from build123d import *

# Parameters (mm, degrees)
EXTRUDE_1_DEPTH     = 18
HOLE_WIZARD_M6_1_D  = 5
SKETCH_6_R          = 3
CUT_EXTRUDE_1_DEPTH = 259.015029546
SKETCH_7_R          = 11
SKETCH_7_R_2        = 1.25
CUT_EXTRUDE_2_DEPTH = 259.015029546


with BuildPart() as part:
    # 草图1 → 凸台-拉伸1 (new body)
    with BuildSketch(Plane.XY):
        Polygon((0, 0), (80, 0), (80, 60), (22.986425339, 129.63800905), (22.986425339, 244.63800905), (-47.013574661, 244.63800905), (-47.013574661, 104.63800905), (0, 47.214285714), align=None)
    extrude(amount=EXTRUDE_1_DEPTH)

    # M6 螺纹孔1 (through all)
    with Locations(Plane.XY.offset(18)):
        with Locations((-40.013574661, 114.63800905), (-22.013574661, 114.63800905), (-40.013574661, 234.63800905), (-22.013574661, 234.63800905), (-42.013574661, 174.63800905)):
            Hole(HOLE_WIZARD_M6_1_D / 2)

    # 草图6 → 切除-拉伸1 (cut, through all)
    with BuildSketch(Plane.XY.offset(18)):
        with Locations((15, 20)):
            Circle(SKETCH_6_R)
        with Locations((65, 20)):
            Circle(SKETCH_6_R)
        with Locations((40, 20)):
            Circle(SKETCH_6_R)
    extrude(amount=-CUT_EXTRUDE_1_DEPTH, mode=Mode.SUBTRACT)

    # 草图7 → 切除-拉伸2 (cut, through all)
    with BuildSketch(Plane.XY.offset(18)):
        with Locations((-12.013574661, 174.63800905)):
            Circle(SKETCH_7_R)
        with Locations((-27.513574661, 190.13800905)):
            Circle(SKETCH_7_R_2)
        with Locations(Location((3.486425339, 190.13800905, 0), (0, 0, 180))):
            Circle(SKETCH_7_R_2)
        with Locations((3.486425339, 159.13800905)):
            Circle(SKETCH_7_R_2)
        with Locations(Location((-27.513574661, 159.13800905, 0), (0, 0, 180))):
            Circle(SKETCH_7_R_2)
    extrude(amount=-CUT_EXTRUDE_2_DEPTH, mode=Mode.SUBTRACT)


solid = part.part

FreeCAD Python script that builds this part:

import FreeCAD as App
import Part
import Sketcher

V = App.Vector

doc = App.newDocument("Part")
body = doc.addObject("PartDesign::Body", "Body")

sketch1 = doc.addObject("Sketcher::SketchObject", "Sketch")
body.addObject(sketch1)
sketch1.AttachmentSupport = (doc.XY_Plane, [""])
sketch1.MapMode = "FlatFace"
sketch1.addGeometry(Part.LineSegment(V(0, 0, 0), V(80, 0, 0)), False)
sketch1.addGeometry(Part.LineSegment(V(80, 0, 0), V(80, 60, 0)), False)
sketch1.addGeometry(Part.LineSegment(V(80, 60, 0), V(23, 130, 0)), False)
sketch1.addGeometry(Part.LineSegment(V(23, 130, 0), V(23, 245, 0)), False)
sketch1.addGeometry(Part.LineSegment(V(23, 245, 0), V(-47, 245, 0)), False)
sketch1.addGeometry(Part.LineSegment(V(-47, 245, 0), V(-47, 105, 0)), False)
sketch1.addGeometry(Part.LineSegment(V(-47, 105, 0), V(0, 47, 0)), False)
sketch1.addGeometry(Part.LineSegment(V(0, 47, 0), V(0, 0, 0)), False)
sketch1.addConstraint(Sketcher.Constraint("Coincident", 0, 2, 1, 1))
sketch1.addConstraint(Sketcher.Constraint("Coincident", 1, 2, 2, 1))
sketch1.addConstraint(Sketcher.Constraint("Coincident", 2, 2, 3, 1))
sketch1.addConstraint(Sketcher.Constraint("Coincident", 3, 2, 4, 1))
sketch1.addConstraint(Sketcher.Constraint("Coincident", 4, 2, 5, 1))
sketch1.addConstraint(Sketcher.Constraint("Coincident", 5, 2, 6, 1))
sketch1.addConstraint(Sketcher.Constraint("Coincident", 6, 2, 7, 1))
sketch1.addConstraint(Sketcher.Constraint("Coincident", 7, 2, 0, 1))
sketch1.addConstraint(Sketcher.Constraint("Horizontal", 0))
sketch1.addConstraint(Sketcher.Constraint("Vertical", 1))
sketch1.addConstraint(Sketcher.Constraint("Vertical", 3))
sketch1.addConstraint(Sketcher.Constraint("Horizontal", 4))
sketch1.addConstraint(Sketcher.Constraint("Vertical", 5))
sketch1.addConstraint(Sketcher.Constraint("Vertical", 7))
sketch1.addConstraint(Sketcher.Constraint("Coincident", 7, 2, -1, 1))
sketch1.addConstraint(Sketcher.Constraint("Parallel", 2, 6))
sketch1.addConstraint(Sketcher.Constraint("DistanceX", 0, 1, 0, 2, 80.0))
sketch1.addConstraint(Sketcher.Constraint("DistanceX", 4, 2, 4, 1, 70.0))
sketch1.addConstraint(Sketcher.Constraint("DistanceY", 1, 1, 1, 2, 60.0))
sketch1.addConstraint(Sketcher.Constraint("DistanceY", 3, 1, 3, 2, 115.0))
sketch1.addConstraint(Sketcher.Constraint("DistanceY", 5, 2, 5, 1, 140.0))
sketch1.addConstraint(Sketcher.Constraint("Distance", 2, 90.0))
sketch1.addConstraint(Sketcher.Constraint("DistanceY", 7, 2, 7, 1, 47.214286))
pad1 = doc.addObject("PartDesign::Pad", "Pad")
body.addObject(pad1)
pad1.Profile = sketch1
pad1.Length = 18

sketch2 = doc.addObject("Sketcher::SketchObject", "Sketch001")
body.addObject(sketch2)
sketch2.AttachmentSupport = (doc.XY_Plane, [""])
sketch2.MapMode = "FlatFace"
sketch2.AttachmentOffset = App.Placement(V(0, 0, 18), App.Rotation())
sketch2.addGeometry(Part.Circle(V(-40, 114.6, 0), V(0, 0, 1), 2.5), False)
sketch2.addGeometry(Part.Circle(V(-22, 114.6, 0), V(0, 0, 1), 2.5), False)
sketch2.addGeometry(Part.Circle(V(-40, 234.6, 0), V(0, 0, 1), 2.5), False)
sketch2.addGeometry(Part.Circle(V(-22, 234.6, 0), V(0, 0, 1), 2.5), False)
sketch2.addGeometry(Part.Circle(V(-42, 174.6, 0), V(0, 0, 1), 2.5), False)
sketch2.addConstraint(Sketcher.Constraint("Equal", 0, 1))
sketch2.addConstraint(Sketcher.Constraint("Equal", 1, 2))
sketch2.addConstraint(Sketcher.Constraint("Equal", 2, 3))
sketch2.addConstraint(Sketcher.Constraint("Equal", 3, 4))
sketch2.addConstraint(Sketcher.Constraint("Horizontal", 0, 3, 1, 3))
sketch2.addConstraint(Sketcher.Constraint("Horizontal", 2, 3, 3, 3))
sketch2.addConstraint(Sketcher.Constraint("Vertical", 0, 3, 2, 3))
sketch2.addConstraint(Sketcher.Constraint("Vertical", 1, 3, 3, 3))
sketch2.addConstraint(Sketcher.Constraint("Diameter", 0, 5.0))
sketch2.addConstraint(Sketcher.Constraint("DistanceX", 0, 3, 1, 3, 18.0))
sketch2.addConstraint(Sketcher.Constraint("DistanceY", 0, 3, 2, 3, 120.0))
sketch2.addConstraint(Sketcher.Constraint("DistanceX", 4, 3, 0, 3, 2.0))
sketch2.addConstraint(Sketcher.Constraint("DistanceY", 0, 3, 4, 3, 60.0))
sketch2.addConstraint(Sketcher.Constraint("DistanceY", -1, 1, 0, 3, 114.638009))
sketch2.addConstraint(Sketcher.Constraint("DistanceX", 0, 3, -1, 1, 40.013575))
doc.recompute()
hole = doc.addObject("PartDesign::Hole", "Hole")
body.addObject(hole)
hole.Profile = sketch2
hole.ThreadType = "None"
hole.Diameter = 5
hole.DepthType = "ThroughAll"

sketch3 = doc.addObject("Sketcher::SketchObject", "Sketch002")
body.addObject(sketch3)
sketch3.AttachmentSupport = (doc.XY_Plane, [""])
sketch3.MapMode = "FlatFace"
sketch3.AttachmentOffset = App.Placement(V(0, 0, 18), App.Rotation())
sketch3.addGeometry(Part.Circle(V(15, 20, 0), V(0, 0, 1), 3), False)
sketch3.addGeometry(Part.Circle(V(65, 20, 0), V(0, 0, 1), 3), False)
sketch3.addGeometry(Part.Circle(V(40, 20, 0), V(0, 0, 1), 3), False)
sketch3.addConstraint(Sketcher.Constraint("Equal", 0, 1))
sketch3.addConstraint(Sketcher.Constraint("Equal", 1, 2))
sketch3.addConstraint(Sketcher.Constraint("Horizontal", 0, 3, 1, 3))
sketch3.addConstraint(Sketcher.Constraint("Horizontal", 1, 3, 2, 3))
sketch3.addConstraint(Sketcher.Constraint("Diameter", 0, 6.0))
sketch3.addConstraint(Sketcher.Constraint("DistanceX", -1, 1, 0, 3, 15.0))
sketch3.addConstraint(Sketcher.Constraint("DistanceY", -1, 1, 0, 3, 20.0))
sketch3.addConstraint(Sketcher.Constraint("DistanceX", -1, 1, 1, 3, 65.0))
sketch3.addConstraint(Sketcher.Constraint("DistanceX", -1, 1, 2, 3, 40.0))
pocket1 = doc.addObject("PartDesign::Pocket", "Pocket")
body.addObject(pocket1)
pocket1.Profile = sketch3
pocket1.Type = "ThroughAll"

sketch4 = doc.addObject("Sketcher::SketchObject", "Sketch003")
body.addObject(sketch4)
sketch4.AttachmentSupport = (doc.XY_Plane, [""])
sketch4.MapMode = "FlatFace"
sketch4.AttachmentOffset = App.Placement(V(0, 0, 18), App.Rotation())
sketch4.addGeometry(Part.Circle(V(-12, 174.6, 0), V(0, 0, 1), 11), False)
sketch4.addGeometry(Part.Circle(V(-27.5, 190.1, 0), V(0, 0, 1), 1.2), False)
sketch4.addGeometry(Part.Circle(V(3.5, 190.1, 0), V(0, 0, 1), 1.2), False)
sketch4.addGeometry(Part.Circle(V(3.5, 159.1, 0), V(0, 0, 1), 1.2), False)
sketch4.addGeometry(Part.Circle(V(-27.5, 159.1, 0), V(0, 0, 1), 1.2), False)
sketch4.addConstraint(Sketcher.Constraint("Equal", 1, 2))
sketch4.addConstraint(Sketcher.Constraint("Equal", 2, 3))
sketch4.addConstraint(Sketcher.Constraint("Equal", 3, 4))
sketch4.addConstraint(Sketcher.Constraint("Horizontal", 1, 3, 2, 3))
sketch4.addConstraint(Sketcher.Constraint("Horizontal", 3, 3, 4, 3))
sketch4.addConstraint(Sketcher.Constraint("Vertical", 2, 3, 3, 3))
sketch4.addConstraint(Sketcher.Constraint("Vertical", 1, 3, 4, 3))
sketch4.addConstraint(Sketcher.Constraint("Diameter", 0, 22.0))
sketch4.addConstraint(Sketcher.Constraint("Diameter", 1, 2.5))
sketch4.addConstraint(Sketcher.Constraint("DistanceX", 1, 3, 2, 3, 31.0))
sketch4.addConstraint(Sketcher.Constraint("DistanceY", 3, 3, 2, 3, 31.0))
sketch4.addConstraint(Sketcher.Constraint("DistanceX", 1, 3, 0, 3, 15.5))
sketch4.addConstraint(Sketcher.Constraint("DistanceY", 0, 3, 1, 3, 15.5))
sketch4.addConstraint(Sketcher.Constraint("DistanceY", -1, 1, 0, 3, 174.638009))
sketch4.addConstraint(Sketcher.Constraint("DistanceX", 0, 3, -1, 1, 12.013575))
pocket2 = doc.addObject("PartDesign::Pocket", "Pocket001")
body.addObject(pocket2)
pocket2.Profile = sketch4
pocket2.Type = "ThroughAll"

doc.recompute()
